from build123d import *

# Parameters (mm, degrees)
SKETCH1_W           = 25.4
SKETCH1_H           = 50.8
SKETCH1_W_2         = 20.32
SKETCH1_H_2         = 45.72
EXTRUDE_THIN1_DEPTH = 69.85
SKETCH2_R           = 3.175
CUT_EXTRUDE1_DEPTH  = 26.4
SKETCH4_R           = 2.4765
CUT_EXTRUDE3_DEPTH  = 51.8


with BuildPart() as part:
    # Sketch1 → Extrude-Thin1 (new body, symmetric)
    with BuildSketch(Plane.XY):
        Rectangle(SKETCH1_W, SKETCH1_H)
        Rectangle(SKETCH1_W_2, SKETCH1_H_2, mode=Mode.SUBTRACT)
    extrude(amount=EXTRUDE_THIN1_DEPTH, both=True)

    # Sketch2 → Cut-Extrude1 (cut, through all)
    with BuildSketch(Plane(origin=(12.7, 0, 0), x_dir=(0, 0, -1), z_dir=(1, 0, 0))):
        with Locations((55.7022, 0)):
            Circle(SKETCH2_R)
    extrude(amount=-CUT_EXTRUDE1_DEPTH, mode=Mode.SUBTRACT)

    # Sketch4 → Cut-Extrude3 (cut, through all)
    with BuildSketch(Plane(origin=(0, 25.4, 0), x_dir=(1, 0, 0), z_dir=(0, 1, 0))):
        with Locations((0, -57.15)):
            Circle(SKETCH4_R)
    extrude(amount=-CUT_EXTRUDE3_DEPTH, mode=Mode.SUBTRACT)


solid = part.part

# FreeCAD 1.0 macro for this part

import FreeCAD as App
import Part
import Sketcher

V = App.Vector
Q = App.Units.Quantity

doc = App.newDocument("Part")
body = doc.addObject("PartDesign::Body", "Body")

# Sketch on XY plane
sketch1 = doc.addObject("Sketcher::SketchObject", "Sketch")
body.addObject(sketch1)
sketch1.AttachmentSupport = (doc.XY_Plane, [""])
sketch1.MapMode = "FlatFace"
sketch1.addGeometry(Part.LineSegment(V(-13, 25, 0), V(-13, -25, 0)), False)
sketch1.addGeometry(Part.LineSegment(V(-13, -25, 0), V(13, -25, 0)), False)
sketch1.addGeometry(Part.LineSegment(V(13, -25, 0), V(13, 25, 0)), False)
sketch1.addGeometry(Part.LineSegment(V(13, 25, 0), V(-13, 25, 0)), False)
sketch1.addGeometry(Part.LineSegment(V(10, -23, 0), V(-10, -23, 0)), False)
sketch1.addGeometry(Part.LineSegment(V(-10, -23, 0), V(-10, 23, 0)), False)
sketch1.addGeometry(Part.LineSegment(V(-10, 23, 0), V(10, 23, 0)), False)
sketch1.addGeometry(Part.LineSegment(V(10, 23, 0), V(10, -23, 0)), False)
sketch1.addConstraint(Sketcher.Constraint("Coincident", 0, 2, 1, 1))
sketch1.addConstraint(Sketcher.Constraint("Coincident", 1, 2, 2, 1))
sketch1.addConstraint(Sketcher.Constraint("Coincident", 2, 2, 3, 1))
sketch1.addConstraint(Sketcher.Constraint("Coincident", 3, 2, 0, 1))
sketch1.addConstraint(Sketcher.Constraint("Coincident", 4, 2, 5, 1))
sketch1.addConstraint(Sketcher.Constraint("Coincident", 5, 2, 6, 1))
sketch1.addConstraint(Sketcher.Constraint("Coincident", 6, 2, 7, 1))
sketch1.addConstraint(Sketcher.Constraint("Coincident", 7, 2, 4, 1))
sketch1.addConstraint(Sketcher.Constraint("Vertical", 0))
sketch1.addConstraint(Sketcher.Constraint("Horizontal", 1))
sketch1.addConstraint(Sketcher.Constraint("Vertical", 2))
sketch1.addConstraint(Sketcher.Constraint("Horizontal", 3))
sketch1.addConstraint(Sketcher.Constraint("Horizontal", 4))
sketch1.addConstraint(Sketcher.Constraint("Vertical", 5))
sketch1.addConstraint(Sketcher.Constraint("Horizontal", 6))
sketch1.addConstraint(Sketcher.Constraint("Vertical", 7))
sketch1.addConstraint(Sketcher.Constraint("Symmetric", 0, 2, 2, 2, -1, 1))
sketch1.addConstraint(Sketcher.Constraint("Symmetric", 4, 2, 6, 2, -1, 1))
sketch1.addConstraint(Sketcher.Constraint("DistanceX", 1, 1, 1, 2, Q("1 in")))
sketch1.addConstraint(Sketcher.Constraint("DistanceY", 0, 2, 0, 1, Q("2 in")))
sketch1.addConstraint(Sketcher.Constraint("DistanceX", 4, 2, 4, 1, Q("0.8 in")))
sketch1.addConstraint(Sketcher.Constraint("DistanceY", 5, 1, 5, 2, Q("1.8 in")))
pad1 = doc.addObject("PartDesign::Pad", "Pad")
body.addObject(pad1)
pad1.Profile = sketch1
pad1.Length = Q("5.5 in")
pad1.Midplane = True

# Sketch on YZ plane
sketch2 = doc.addObject("Sketcher::SketchObject", "Sketch001")
body.addObject(sketch2)
sketch2.AttachmentSupport = (doc.YZ_Plane, [""])
sketch2.MapMode = "FlatFace"
sketch2.AttachmentOffset = App.Placement(V(0, 0, 0.5 * 25.4), App.Rotation())
sketch2.addGeometry(Part.Circle(V(0, -55.7, 0), V(0, 0, 1), 3.2), False)
sketch2.addConstraint(Sketcher.Constraint("PointOnObject", 0, 3, -2))
sketch2.addConstraint(Sketcher.Constraint("Diameter", 0, Q("0.25 in")))
sketch2.addConstraint(Sketcher.Constraint("DistanceY", 0, 3, -1, 1, Q("2.193 in")))
pocket1 = doc.addObject("PartDesign::Pocket", "Pocket")
body.addObject(pocket1)
pocket1.Profile = sketch2
pocket1.Type = "ThroughAll"

# Sketch on XZ plane
sketch3 = doc.addObject("Sketcher::SketchObject", "Sketch002")
body.addObject(sketch3)
sketch3.AttachmentSupport = (doc.XZ_Plane, [""])
sketch3.MapMode = "FlatFace"
sketch3.AttachmentOffset = App.Placement(V(0, 0, -1 * 25.4), App.Rotation())
sketch3.addGeometry(Part.Circle(V(0, 57.1, 0), V(0, 0, 1), 2.5), False)
sketch3.addConstraint(Sketcher.Constraint("PointOnObject", 0, 3, -2))
sketch3.addConstraint(Sketcher.Constraint("Diameter", 0, Q("0.195 in")))
sketch3.addConstraint(Sketcher.Constraint("DistanceY", -1, 1, 0, 3, Q("2.25 in")))
pocket2 = doc.addObject("PartDesign::Pocket", "Pocket001")
body.addObject(pocket2)
pocket2.Profile = sketch3
pocket2.Type = "ThroughAll"
pocket2.Reversed = True

doc.recompute()
